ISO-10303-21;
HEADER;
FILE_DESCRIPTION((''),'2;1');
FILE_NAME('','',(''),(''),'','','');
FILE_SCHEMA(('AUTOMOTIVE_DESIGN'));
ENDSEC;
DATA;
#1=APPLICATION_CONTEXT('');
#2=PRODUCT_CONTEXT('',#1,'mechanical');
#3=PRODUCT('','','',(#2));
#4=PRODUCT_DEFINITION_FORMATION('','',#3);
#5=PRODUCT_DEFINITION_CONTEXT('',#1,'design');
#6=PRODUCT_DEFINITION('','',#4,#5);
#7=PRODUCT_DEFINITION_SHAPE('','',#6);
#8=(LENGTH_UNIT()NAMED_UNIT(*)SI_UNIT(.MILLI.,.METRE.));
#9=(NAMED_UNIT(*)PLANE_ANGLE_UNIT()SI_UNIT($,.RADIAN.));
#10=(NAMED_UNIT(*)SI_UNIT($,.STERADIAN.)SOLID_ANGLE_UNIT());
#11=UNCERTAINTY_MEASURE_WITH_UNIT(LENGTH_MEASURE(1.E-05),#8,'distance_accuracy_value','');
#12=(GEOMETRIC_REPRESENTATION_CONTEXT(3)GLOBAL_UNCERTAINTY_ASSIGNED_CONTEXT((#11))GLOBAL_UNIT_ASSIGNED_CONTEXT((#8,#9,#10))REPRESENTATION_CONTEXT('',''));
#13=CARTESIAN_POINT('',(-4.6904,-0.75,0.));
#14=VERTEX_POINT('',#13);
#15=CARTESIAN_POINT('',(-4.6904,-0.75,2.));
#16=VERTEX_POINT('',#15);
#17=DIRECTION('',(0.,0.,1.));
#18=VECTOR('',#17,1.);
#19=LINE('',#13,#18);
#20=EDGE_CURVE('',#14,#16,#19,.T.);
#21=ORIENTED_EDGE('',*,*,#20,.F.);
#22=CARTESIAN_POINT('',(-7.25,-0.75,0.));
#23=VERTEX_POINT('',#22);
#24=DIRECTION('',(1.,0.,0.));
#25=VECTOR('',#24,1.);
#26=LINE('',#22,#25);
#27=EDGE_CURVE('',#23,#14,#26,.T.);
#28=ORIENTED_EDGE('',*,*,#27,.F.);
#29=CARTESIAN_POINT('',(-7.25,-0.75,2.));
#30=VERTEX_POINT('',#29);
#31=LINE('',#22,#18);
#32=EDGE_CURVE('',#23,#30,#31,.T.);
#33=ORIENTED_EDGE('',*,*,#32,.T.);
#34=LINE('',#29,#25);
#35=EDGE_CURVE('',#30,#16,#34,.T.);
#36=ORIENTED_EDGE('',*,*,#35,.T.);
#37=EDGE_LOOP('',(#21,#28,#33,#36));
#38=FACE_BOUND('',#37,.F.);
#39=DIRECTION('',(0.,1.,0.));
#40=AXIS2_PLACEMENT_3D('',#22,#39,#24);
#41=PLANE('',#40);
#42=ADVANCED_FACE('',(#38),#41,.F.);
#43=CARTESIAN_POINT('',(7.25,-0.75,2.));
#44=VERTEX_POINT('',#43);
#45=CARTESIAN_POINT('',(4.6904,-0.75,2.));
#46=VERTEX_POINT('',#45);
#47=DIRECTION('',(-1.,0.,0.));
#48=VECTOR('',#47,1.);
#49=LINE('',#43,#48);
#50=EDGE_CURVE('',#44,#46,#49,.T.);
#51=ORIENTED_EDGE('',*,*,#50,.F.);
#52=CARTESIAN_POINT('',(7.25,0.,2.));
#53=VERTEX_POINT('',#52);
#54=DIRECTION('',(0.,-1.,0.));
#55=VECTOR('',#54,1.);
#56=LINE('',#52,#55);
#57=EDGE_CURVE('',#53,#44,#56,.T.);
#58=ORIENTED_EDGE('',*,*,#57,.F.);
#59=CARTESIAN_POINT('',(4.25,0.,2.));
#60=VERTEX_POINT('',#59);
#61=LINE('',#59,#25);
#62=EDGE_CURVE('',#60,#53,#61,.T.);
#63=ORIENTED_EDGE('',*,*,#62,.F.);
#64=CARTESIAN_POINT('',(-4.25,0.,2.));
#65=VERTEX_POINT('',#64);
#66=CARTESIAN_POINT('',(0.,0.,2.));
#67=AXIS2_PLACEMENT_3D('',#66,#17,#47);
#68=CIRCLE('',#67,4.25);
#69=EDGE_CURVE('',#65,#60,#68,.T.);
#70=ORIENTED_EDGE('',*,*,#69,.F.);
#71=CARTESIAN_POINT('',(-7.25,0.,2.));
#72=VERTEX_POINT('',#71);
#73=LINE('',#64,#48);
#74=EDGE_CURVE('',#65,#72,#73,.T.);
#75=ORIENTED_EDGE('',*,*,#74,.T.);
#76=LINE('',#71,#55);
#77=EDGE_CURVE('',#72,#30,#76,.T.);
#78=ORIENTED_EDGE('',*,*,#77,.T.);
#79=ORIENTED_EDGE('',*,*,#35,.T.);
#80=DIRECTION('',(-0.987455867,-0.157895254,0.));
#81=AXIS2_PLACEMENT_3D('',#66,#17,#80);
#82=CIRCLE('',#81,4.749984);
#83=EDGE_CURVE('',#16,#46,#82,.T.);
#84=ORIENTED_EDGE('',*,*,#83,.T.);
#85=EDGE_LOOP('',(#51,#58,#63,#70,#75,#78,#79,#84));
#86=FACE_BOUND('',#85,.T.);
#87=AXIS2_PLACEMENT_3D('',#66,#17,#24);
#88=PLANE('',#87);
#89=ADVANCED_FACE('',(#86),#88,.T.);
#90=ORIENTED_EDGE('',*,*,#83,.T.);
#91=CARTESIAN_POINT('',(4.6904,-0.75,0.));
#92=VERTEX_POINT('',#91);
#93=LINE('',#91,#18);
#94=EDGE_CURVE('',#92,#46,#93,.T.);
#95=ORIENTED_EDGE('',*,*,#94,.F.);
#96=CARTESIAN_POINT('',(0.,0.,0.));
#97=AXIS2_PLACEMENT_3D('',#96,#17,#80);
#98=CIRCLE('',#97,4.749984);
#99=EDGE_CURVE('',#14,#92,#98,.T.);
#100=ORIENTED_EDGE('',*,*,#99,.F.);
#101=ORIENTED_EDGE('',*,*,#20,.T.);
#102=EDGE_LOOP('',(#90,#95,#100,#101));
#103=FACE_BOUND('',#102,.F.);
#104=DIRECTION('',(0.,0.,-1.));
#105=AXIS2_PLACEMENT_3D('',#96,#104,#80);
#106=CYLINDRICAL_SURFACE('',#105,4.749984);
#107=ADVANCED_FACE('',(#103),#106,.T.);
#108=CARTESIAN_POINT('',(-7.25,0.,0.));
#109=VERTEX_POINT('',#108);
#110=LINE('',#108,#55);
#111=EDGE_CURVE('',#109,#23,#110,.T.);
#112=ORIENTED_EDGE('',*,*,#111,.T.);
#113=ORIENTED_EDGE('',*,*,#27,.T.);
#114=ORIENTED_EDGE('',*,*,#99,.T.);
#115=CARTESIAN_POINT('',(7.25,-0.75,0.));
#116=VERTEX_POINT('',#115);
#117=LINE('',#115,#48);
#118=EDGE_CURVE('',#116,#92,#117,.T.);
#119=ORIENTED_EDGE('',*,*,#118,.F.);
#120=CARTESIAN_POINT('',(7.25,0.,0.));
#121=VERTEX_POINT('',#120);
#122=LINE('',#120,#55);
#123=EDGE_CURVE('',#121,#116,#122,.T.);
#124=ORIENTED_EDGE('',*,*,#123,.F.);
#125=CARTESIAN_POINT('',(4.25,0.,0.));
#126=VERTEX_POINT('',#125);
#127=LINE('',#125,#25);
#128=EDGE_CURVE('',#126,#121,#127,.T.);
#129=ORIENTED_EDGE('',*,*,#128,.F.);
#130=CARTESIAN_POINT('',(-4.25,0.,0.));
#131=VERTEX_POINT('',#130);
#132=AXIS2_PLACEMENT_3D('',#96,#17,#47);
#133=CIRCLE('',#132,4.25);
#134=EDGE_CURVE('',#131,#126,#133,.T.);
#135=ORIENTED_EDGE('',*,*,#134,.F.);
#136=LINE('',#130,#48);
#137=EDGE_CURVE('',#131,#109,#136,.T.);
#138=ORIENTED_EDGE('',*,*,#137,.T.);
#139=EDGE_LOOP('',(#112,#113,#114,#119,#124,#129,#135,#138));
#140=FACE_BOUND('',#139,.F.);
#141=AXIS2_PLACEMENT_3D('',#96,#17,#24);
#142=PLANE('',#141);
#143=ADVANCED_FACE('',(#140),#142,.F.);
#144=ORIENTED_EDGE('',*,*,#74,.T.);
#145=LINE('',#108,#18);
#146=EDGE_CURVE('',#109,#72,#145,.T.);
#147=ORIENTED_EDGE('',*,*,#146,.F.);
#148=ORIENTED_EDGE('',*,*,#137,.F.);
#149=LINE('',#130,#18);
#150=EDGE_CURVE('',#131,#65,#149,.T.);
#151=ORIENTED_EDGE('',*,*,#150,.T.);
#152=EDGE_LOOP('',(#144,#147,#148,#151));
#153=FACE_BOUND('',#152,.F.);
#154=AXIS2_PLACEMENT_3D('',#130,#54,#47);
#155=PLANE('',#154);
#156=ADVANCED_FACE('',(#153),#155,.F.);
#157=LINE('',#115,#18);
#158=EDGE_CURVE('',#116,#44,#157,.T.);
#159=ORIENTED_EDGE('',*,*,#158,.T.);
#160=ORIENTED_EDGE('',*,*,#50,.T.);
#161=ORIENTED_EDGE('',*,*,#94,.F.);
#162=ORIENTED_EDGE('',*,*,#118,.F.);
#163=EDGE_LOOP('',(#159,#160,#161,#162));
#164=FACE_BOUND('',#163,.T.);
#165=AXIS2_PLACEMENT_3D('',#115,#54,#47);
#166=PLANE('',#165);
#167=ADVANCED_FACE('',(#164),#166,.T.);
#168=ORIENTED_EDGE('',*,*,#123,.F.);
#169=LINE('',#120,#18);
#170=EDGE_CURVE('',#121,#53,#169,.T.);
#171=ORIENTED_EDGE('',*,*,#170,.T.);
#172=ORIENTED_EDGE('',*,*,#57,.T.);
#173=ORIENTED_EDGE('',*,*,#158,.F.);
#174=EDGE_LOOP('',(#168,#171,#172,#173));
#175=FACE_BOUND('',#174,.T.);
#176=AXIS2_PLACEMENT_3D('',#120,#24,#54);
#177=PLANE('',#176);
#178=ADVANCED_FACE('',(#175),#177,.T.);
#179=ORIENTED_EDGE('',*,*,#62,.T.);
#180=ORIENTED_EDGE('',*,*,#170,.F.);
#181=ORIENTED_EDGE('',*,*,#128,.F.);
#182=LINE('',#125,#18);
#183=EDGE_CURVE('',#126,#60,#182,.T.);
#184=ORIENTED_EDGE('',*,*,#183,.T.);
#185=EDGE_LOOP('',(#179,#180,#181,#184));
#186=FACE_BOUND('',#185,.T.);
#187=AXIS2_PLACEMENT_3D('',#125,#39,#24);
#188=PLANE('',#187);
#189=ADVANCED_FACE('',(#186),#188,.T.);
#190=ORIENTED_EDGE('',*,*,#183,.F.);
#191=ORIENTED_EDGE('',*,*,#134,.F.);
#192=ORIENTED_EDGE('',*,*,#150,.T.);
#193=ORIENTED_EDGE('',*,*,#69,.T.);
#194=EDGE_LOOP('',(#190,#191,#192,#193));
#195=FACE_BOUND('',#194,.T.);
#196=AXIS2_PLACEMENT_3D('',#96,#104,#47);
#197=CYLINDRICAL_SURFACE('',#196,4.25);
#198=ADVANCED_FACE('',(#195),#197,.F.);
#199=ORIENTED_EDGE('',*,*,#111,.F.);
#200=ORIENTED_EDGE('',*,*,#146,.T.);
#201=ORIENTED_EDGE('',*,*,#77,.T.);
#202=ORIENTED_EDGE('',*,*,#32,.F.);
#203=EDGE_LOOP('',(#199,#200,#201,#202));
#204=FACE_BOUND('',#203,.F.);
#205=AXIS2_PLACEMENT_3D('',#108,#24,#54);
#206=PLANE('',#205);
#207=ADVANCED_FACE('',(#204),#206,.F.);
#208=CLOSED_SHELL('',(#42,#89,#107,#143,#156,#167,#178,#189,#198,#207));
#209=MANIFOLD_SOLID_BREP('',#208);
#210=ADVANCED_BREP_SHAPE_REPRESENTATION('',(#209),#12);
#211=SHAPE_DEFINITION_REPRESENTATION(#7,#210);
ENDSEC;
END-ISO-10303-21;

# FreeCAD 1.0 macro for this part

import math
import FreeCAD as App
import Part
import Sketcher
Q = App.Units.Quantity

doc = App.newDocument("Part")
body = doc.addObject("PartDesign::Body", "Body")

# Sketch on XY plane
sketch1 = doc.addObject("Sketcher::SketchObject", "Sketch")
body.addObject(sketch1)
sketch1.AttachmentSupport = (doc.XY_Plane, [""])
sketch1.MapMode = "FlatFace"
sketch1.addGeometry([
    Part.ArcOfCircle(Part.Circle(App.Vector(0, 0, 0), App.Vector(0, 0, 1), 4.2), math.radians(180), math.radians(360)),  # 0
    Part.LineSegment(App.Vector(-4.2, 0, 0), App.Vector(-7.2, 0, 0)),  # 1
    Part.LineSegment(App.Vector(-7.2, 0, 0), App.Vector(-7.2, -0.8, 0)),  # 2
    Part.LineSegment(App.Vector(-7.2, -0.8, 0), App.Vector(-4.7, -0.8, 0)),  # 3
    Part.ArcOfCircle(Part.Circle(App.Vector(0, 0, 0), App.Vector(0, 0, 1), 4.7), math.radians(-171), math.radians(-9)),  # 4
    Part.LineSegment(App.Vector(4.7, -0.8, 0), App.Vector(7.2, -0.8, 0)),  # 5
    Part.LineSegment(App.Vector(7.2, -0.8, 0), App.Vector(7.2, 0, 0)),  # 6
    Part.LineSegment(App.Vector(7.2, 0, 0), App.Vector(4.2, 0, 0)),  # 7
], False)
sketch1.addConstraint([
    Sketcher.Constraint("Coincident", 0, 1, 1, 1),
    Sketcher.Constraint("Coincident", 1, 2, 2, 1),
    Sketcher.Constraint("Coincident", 2, 2, 3, 1),
    Sketcher.Constraint("Coincident", 3, 2, 4, 1),
    Sketcher.Constraint("Coincident", 4, 2, 5, 1),
    Sketcher.Constraint("Coincident", 5, 2, 6, 1),
    Sketcher.Constraint("Coincident", 6, 2, 7, 1),
    Sketcher.Constraint("Coincident", 7, 2, 0, 2),
    Sketcher.Constraint("Horizontal", 1),
    Sketcher.Constraint("Vertical", 2),
    Sketcher.Constraint("Horizontal", 3),
    Sketcher.Constraint("Horizontal", 5),
    Sketcher.Constraint("Vertical", 6),
    Sketcher.Constraint("Horizontal", 7),
    Sketcher.Constraint("Coincident", 0, 3, -1, 1),
    Sketcher.Constraint("Coincident", 4, 3, -1, 1),
    Sketcher.Constraint("Symmetric", 1, 2, 6, 2, -1, 1),
    Sketcher.Constraint("PointOnObject", 0, 1, -1),
    Sketcher.Constraint("Horizontal", 3, 2, 4, 2),
    Sketcher.Constraint("DistanceX", 1, 2, 1, 1, Q("3 mm")),
    Sketcher.Constraint("Radius", 0, Q("4.25 mm")),
    Sketcher.Constraint("Radius", 4, Q("4.75 mm")),
    Sketcher.Constraint("DistanceY", 2, 2, 2, 1, Q("0.75 mm")),
])
pad1 = doc.addObject("PartDesign::Pad", "Pad")
body.addObject(pad1)
pad1.Profile = sketch1
pad1.Length = 2

doc.recompute()
